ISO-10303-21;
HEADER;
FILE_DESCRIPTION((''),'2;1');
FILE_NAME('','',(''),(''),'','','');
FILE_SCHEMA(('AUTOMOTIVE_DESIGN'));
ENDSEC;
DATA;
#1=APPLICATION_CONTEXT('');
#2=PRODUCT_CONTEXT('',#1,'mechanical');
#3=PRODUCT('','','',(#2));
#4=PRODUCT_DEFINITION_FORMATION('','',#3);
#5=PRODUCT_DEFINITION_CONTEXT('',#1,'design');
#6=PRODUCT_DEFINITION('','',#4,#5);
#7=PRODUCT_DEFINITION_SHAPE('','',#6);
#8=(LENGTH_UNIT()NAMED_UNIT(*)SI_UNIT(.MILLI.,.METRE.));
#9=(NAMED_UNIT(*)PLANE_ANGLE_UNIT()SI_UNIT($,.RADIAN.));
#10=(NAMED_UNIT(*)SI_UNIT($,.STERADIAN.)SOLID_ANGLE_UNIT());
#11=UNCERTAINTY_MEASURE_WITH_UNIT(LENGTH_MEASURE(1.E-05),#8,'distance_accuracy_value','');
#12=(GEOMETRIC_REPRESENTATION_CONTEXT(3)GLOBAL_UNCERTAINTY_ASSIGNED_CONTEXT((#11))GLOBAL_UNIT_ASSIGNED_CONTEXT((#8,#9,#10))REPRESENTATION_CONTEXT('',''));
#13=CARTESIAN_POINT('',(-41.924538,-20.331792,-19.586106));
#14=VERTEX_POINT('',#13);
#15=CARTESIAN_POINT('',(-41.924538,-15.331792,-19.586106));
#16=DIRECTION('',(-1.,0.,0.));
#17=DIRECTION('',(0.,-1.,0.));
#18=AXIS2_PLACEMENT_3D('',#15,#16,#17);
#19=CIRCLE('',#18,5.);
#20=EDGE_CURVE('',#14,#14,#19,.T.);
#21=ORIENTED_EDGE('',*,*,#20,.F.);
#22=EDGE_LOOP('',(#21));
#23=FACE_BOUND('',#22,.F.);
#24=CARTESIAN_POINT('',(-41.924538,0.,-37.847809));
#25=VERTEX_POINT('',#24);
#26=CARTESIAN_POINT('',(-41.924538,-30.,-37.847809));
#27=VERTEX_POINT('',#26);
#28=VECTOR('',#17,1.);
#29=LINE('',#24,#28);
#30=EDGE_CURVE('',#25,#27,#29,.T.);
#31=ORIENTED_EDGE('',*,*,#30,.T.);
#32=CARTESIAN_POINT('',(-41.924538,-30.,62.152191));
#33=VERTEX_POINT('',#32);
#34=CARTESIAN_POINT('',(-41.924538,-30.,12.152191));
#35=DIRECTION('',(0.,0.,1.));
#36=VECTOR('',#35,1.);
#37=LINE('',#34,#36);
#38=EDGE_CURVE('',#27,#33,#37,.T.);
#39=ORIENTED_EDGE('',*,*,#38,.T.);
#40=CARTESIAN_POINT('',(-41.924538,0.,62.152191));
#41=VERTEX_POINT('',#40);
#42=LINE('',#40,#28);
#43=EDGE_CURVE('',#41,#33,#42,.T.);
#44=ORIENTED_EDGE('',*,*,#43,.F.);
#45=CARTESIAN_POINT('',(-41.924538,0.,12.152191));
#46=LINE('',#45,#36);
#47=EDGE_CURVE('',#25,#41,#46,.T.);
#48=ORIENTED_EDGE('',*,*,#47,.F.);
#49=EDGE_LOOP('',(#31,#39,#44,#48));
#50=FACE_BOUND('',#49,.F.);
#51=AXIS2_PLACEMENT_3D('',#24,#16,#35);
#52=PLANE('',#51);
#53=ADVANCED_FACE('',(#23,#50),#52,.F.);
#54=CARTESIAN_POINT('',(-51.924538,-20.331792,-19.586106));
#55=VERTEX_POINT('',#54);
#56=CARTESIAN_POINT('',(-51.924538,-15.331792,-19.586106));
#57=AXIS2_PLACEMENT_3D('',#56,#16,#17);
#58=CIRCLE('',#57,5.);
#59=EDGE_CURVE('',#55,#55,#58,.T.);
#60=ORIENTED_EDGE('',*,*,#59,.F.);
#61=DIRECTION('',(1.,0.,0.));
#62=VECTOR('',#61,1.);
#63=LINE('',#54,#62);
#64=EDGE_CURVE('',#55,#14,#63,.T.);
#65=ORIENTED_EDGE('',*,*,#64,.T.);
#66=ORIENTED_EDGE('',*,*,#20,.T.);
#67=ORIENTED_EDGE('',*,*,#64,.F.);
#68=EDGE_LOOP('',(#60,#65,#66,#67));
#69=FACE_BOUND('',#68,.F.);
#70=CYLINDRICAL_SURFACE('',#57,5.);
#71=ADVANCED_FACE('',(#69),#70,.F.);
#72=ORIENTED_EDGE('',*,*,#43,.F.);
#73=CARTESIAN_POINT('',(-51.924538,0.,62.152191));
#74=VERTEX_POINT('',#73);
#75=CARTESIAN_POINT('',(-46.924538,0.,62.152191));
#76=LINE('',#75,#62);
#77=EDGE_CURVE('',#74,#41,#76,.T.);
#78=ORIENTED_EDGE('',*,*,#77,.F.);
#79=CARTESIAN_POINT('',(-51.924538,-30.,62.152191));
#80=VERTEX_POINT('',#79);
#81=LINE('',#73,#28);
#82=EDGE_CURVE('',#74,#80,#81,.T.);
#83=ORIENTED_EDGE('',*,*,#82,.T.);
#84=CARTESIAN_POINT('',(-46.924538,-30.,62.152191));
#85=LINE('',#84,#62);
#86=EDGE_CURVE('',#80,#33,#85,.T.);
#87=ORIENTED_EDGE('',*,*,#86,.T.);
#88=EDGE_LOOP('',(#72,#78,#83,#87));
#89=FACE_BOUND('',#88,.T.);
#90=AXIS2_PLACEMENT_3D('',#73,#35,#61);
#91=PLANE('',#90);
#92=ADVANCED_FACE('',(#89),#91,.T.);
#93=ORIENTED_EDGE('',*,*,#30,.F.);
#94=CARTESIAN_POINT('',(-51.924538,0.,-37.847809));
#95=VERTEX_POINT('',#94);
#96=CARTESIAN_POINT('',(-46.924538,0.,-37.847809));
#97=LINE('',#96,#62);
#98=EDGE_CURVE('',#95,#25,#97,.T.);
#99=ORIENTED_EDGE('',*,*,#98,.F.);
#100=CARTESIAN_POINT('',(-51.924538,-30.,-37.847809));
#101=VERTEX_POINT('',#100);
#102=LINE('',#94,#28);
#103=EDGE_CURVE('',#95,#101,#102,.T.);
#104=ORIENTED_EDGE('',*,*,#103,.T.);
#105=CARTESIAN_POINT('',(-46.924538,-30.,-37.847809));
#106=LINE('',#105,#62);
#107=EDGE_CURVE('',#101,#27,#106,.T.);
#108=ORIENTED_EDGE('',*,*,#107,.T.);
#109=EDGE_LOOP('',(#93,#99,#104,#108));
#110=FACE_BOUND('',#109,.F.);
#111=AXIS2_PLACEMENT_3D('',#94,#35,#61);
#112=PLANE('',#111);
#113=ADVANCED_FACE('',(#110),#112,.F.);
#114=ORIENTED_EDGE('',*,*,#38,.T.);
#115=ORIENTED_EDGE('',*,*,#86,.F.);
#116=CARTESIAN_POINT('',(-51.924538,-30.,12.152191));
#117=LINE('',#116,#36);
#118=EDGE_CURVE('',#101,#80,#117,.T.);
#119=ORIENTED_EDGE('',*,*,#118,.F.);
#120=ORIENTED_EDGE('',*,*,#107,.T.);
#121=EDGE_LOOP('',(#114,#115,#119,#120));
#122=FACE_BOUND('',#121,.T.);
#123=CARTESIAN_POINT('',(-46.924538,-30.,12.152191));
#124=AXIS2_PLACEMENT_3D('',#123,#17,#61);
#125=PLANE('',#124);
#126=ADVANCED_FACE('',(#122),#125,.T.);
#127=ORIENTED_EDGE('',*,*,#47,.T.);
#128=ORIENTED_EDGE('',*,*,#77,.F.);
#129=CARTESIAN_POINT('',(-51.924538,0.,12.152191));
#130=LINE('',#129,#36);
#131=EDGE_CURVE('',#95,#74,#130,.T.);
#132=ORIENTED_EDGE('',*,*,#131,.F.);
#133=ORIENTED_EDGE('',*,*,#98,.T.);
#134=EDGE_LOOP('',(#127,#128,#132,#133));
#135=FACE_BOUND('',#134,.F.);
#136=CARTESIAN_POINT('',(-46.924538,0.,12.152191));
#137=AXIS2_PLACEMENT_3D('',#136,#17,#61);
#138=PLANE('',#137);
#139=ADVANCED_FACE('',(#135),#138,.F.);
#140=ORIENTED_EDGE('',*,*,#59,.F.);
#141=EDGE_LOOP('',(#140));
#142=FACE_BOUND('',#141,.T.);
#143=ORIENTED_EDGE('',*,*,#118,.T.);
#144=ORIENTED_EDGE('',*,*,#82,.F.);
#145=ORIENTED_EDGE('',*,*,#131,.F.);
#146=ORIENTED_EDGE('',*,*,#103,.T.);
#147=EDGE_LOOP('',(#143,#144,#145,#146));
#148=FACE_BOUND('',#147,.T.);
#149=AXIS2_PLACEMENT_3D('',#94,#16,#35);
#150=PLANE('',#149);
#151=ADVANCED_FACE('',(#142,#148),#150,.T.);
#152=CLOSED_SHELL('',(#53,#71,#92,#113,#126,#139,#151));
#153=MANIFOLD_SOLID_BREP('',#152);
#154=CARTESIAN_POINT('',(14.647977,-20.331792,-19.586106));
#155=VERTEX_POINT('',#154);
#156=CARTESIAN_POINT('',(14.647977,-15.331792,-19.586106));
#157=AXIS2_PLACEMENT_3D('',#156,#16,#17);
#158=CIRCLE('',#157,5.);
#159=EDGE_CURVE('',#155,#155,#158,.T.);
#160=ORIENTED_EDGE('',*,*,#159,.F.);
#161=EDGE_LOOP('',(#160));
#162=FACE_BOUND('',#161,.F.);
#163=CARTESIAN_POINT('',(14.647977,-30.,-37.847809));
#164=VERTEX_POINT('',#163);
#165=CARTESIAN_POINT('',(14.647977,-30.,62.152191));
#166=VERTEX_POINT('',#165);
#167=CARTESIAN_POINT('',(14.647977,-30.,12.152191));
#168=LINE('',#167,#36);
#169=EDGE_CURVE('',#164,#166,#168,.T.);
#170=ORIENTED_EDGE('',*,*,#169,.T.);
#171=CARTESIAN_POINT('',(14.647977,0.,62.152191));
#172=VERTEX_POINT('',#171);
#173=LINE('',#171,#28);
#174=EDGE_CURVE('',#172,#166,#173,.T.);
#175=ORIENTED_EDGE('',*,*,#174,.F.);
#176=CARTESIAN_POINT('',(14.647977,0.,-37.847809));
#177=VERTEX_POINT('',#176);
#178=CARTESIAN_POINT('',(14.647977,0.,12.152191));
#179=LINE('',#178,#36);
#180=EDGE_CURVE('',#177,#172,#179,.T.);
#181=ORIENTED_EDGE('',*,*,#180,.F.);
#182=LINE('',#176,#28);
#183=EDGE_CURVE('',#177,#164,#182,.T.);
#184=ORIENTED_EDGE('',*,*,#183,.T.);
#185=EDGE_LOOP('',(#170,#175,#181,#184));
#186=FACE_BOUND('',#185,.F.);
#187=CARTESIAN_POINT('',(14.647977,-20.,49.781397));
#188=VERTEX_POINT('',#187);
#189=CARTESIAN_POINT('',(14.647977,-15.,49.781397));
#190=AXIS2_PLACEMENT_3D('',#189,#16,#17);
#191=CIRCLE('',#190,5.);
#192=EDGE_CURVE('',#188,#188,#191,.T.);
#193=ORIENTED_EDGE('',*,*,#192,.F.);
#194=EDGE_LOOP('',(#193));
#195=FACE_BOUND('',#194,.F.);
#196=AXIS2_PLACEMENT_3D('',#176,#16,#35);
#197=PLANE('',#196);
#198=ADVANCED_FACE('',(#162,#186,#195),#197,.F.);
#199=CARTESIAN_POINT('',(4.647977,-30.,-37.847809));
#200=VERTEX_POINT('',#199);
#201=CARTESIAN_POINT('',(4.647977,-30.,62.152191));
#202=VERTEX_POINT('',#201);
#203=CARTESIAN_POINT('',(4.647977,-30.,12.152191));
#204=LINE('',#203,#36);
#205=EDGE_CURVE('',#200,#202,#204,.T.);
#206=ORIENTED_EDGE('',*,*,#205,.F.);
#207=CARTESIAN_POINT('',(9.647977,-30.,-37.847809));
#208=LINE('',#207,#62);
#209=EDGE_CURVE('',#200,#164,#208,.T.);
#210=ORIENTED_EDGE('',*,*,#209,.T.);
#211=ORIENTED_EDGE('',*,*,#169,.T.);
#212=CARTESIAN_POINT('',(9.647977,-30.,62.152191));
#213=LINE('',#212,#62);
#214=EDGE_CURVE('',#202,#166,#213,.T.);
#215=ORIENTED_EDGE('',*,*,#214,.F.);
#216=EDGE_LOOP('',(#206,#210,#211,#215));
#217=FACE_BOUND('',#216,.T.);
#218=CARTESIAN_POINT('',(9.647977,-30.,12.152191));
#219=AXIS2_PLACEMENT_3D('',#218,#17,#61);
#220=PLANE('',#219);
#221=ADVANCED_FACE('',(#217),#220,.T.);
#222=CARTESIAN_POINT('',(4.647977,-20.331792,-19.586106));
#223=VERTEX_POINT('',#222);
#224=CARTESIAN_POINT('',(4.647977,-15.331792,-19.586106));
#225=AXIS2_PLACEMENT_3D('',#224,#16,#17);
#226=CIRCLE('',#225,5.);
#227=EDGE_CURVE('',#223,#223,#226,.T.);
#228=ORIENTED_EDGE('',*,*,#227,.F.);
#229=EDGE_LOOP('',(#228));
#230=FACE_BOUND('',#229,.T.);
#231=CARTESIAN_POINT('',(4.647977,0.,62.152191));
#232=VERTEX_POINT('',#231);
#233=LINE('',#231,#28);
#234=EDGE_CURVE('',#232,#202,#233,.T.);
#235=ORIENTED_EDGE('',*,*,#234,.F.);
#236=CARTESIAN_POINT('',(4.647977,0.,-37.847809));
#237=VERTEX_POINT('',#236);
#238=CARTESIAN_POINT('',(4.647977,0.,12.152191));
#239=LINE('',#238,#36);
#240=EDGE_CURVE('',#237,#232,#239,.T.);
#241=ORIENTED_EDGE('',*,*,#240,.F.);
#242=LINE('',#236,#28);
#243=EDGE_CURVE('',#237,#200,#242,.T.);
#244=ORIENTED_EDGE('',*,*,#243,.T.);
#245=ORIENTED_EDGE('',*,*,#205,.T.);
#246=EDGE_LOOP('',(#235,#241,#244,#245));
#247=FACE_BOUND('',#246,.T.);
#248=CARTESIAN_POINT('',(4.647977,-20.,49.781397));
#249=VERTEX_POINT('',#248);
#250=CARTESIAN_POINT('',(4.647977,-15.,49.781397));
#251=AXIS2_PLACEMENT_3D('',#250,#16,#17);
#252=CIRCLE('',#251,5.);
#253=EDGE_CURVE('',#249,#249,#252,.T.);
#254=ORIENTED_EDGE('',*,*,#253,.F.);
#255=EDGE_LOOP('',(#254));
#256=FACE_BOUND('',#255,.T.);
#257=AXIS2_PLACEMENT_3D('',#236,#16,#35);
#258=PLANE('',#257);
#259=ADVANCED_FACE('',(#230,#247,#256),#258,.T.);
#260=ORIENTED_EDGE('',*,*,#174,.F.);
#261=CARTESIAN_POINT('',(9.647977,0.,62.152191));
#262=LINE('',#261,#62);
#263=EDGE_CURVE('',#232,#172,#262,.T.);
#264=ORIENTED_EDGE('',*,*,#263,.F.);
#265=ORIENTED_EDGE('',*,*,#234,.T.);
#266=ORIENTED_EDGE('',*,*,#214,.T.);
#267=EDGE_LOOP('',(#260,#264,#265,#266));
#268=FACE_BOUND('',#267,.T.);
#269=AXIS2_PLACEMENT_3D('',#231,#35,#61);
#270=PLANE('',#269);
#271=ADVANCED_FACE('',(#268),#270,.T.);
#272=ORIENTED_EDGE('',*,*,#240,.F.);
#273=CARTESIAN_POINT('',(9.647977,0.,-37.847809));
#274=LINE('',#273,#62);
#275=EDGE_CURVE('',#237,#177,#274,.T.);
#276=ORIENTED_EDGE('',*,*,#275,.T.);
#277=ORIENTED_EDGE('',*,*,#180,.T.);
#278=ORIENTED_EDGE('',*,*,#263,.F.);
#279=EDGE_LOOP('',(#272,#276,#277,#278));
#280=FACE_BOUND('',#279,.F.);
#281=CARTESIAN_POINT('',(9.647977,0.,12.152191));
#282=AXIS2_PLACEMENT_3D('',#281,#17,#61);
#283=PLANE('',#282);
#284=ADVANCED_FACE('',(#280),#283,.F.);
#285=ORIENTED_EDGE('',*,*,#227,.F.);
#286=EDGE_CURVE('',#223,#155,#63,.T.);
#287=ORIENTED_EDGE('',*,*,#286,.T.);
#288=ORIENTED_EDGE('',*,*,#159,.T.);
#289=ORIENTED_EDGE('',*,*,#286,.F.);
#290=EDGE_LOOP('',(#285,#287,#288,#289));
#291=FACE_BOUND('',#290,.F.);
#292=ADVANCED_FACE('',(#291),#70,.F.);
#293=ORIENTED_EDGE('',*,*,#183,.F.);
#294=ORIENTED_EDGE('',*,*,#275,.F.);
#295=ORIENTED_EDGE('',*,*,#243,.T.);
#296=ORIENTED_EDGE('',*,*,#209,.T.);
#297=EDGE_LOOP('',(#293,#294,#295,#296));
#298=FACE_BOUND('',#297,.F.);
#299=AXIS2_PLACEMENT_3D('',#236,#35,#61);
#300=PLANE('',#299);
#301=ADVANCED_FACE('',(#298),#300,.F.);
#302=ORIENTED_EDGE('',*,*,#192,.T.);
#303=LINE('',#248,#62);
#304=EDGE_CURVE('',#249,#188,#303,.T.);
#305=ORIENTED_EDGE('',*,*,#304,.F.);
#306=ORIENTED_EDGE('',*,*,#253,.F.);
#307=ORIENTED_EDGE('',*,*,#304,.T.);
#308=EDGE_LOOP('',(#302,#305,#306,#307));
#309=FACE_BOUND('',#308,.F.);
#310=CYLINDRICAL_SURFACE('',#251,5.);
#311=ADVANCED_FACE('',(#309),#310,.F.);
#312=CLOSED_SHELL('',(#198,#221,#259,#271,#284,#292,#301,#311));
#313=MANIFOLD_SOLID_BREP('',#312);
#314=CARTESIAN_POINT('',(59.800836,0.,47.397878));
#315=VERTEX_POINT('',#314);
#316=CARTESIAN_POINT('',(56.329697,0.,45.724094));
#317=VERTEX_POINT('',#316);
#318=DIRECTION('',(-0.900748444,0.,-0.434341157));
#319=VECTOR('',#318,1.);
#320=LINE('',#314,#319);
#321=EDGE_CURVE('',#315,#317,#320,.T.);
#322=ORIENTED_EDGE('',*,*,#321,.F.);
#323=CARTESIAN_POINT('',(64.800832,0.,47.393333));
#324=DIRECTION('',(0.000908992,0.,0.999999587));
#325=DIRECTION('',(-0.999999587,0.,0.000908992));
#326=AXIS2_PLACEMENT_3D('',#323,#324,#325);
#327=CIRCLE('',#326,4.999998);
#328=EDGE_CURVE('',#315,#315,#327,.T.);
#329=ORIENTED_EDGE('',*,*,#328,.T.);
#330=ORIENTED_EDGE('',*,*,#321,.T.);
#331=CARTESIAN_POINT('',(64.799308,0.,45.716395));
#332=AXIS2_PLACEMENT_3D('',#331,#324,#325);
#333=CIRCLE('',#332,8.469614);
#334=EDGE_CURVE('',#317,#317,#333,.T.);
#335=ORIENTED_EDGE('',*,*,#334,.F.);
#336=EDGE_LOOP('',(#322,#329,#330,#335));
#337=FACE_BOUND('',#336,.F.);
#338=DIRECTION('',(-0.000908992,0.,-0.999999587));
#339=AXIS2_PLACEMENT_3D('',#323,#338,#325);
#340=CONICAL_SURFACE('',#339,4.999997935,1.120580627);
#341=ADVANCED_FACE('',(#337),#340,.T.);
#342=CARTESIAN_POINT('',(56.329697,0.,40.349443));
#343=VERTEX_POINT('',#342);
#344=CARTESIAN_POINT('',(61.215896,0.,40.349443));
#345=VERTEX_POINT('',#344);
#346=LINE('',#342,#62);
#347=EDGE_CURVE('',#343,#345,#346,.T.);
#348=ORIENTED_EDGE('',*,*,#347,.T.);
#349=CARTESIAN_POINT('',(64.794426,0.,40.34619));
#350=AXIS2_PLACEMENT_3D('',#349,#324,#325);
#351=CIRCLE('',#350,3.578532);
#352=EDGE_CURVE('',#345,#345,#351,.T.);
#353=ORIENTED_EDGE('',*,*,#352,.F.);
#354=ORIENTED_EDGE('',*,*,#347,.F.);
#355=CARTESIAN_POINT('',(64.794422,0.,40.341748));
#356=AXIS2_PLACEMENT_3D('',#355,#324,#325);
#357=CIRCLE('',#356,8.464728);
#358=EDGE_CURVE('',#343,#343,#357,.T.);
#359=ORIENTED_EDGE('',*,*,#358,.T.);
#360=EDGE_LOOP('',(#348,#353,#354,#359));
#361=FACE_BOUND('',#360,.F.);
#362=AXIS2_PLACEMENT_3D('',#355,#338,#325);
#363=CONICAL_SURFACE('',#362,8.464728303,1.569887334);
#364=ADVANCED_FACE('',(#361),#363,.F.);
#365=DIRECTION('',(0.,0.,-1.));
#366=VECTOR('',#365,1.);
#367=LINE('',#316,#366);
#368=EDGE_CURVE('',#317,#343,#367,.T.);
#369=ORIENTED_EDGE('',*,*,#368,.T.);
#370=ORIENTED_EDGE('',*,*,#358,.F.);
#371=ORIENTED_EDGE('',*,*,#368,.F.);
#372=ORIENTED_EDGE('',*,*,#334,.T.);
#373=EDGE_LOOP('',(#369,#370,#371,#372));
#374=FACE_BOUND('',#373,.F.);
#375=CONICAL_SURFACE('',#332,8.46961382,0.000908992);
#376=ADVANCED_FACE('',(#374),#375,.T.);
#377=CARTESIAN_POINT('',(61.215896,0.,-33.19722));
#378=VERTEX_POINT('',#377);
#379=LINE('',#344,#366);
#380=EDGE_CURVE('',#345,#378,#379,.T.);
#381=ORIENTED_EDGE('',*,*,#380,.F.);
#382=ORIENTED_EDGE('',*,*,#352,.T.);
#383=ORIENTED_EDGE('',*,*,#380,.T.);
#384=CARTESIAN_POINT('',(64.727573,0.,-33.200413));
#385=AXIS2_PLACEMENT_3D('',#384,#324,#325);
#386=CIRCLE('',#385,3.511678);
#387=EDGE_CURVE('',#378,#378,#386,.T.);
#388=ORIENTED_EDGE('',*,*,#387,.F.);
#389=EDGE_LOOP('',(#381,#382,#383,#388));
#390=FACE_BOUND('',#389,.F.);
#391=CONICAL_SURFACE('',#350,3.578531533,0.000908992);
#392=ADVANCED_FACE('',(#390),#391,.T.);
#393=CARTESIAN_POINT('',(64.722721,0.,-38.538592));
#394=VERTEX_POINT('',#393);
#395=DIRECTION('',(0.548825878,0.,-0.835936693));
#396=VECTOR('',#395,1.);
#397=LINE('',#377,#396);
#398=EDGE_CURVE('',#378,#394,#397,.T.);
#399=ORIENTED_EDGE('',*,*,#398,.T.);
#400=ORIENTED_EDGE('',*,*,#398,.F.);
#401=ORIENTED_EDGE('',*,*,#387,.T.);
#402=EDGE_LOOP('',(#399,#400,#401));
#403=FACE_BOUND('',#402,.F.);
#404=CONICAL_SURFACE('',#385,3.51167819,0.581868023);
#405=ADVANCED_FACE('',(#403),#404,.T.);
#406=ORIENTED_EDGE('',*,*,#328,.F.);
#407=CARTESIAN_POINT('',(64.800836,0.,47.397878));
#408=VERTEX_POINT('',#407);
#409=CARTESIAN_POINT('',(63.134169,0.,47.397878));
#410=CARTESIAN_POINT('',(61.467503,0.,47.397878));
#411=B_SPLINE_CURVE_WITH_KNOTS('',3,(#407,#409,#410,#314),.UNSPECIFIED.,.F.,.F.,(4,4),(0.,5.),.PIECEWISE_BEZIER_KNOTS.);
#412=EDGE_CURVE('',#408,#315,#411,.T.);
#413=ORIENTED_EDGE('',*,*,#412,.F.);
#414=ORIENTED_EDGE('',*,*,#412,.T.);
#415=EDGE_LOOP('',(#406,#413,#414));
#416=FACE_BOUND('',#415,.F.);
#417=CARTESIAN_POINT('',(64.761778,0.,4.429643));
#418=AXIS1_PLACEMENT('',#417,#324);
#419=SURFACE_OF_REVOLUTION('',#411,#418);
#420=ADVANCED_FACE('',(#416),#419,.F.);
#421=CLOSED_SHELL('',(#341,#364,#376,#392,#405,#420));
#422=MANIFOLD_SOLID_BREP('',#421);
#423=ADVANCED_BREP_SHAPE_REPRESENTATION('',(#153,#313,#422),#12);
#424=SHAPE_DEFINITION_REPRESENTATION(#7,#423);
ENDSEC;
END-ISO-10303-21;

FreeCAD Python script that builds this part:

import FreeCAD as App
import Part
import Sketcher
Q = App.Units.Quantity


def add_polygon(sketch, points):
    """Adds a closed chain of lines whose ends are joined by coincident constraints."""
    first, n = sketch.GeometryCount, len(points)
    for a, b in zip(points, points[1:] + points[:1]):
        sketch.addGeometry(Part.LineSegment(App.Vector(*a, 0), App.Vector(*b, 0)), False)
    for i in range(n):
        sketch.addConstraint(Sketcher.Constraint("Coincident", first + i, 2, first + (i + 1) % n, 1))

doc = App.newDocument("Part")
body = doc.addObject("PartDesign::Body", "Body")

# Sketch on XZ plane
sketch1 = body.newObject("Sketcher::SketchObject", "Sketch")
sketch1.AttachmentSupport = (doc.getObject("XZ_Plane"), [""])
sketch1.MapMode = "FlatFace"
add_polygon(sketch1, [(5, 62), (5, -38), (15, -38), (15, 62)])  # lines 0-3
sketch1.addConstraint([
    Sketcher.Constraint("Vertical", 0),
    Sketcher.Constraint("Horizontal", 1),
    Sketcher.Constraint("Vertical", 2),
    Sketcher.Constraint("Horizontal", 3),
    Sketcher.Constraint("DistanceX", 1, 1, 1, 2, Q("10 mm")),
    Sketcher.Constraint("DistanceY", 0, 2, 0, 1, Q("100 mm")),
    Sketcher.Constraint("DistanceY", 0, 2, -1, 1, Q("37.847809 mm")),
    Sketcher.Constraint("DistanceX", -1, 1, 0, 2, Q("4.647977 mm")),
])
pad1 = body.newObject("PartDesign::Pad", "Pad")
pad1.Profile = sketch1
pad1.Length = 30
body2 = doc.addObject("PartDesign::Body", "Body001")

# Sketch on XZ plane
sketch2 = body2.newObject("Sketcher::SketchObject", "Sketch001")
sketch2.AttachmentSupport = (doc.getObject("XZ_Plane001"), [""])
sketch2.MapMode = "FlatFace"
add_polygon(sketch2, [(-52, 62), (-52, -38), (-42, -38), (-42, 62)])  # lines 0-3
sketch2.addConstraint([
    Sketcher.Constraint("Vertical", 0),
    Sketcher.Constraint("Horizontal", 1),
    Sketcher.Constraint("Vertical", 2),
    Sketcher.Constraint("Horizontal", 3),
    Sketcher.Constraint("DistanceX", 1, 1, 1, 2, Q("10 mm")),
    Sketcher.Constraint("DistanceY", 0, 2, 0, 1, Q("100 mm")),
    Sketcher.Constraint("DistanceY", 0, 2, -1, 1, Q("37.847809 mm")),
    Sketcher.Constraint("DistanceX", 0, 2, -1, 1, Q("51.924538 mm")),
])
pad2 = body2.newObject("PartDesign::Pad", "Pad001")
pad2.Profile = sketch2
pad2.Length = 30
body3 = doc.addObject("PartDesign::Body", "Body002")

# Sketch on YZ plane
sketch3 = body3.newObject("Sketcher::SketchObject", "Sketch002")
sketch3.AttachmentSupport = (doc.getObject("YZ_Plane002"), [""])
sketch3.MapMode = "FlatFace"
sketch3.AttachmentOffset = App.Placement(App.Vector(0, 0, -51.924538), App.Rotation())
sketch3.addGeometry(Part.Circle(App.Vector(-15, -20, 0), App.Vector(0, 0, 1), 5), False)
sketch3.addConstraint([
    Sketcher.Constraint("Diameter", 0, Q("10 mm")),
    Sketcher.Constraint("DistanceX", 0, 3, -1, 1, Q("15.331792 mm")),
    Sketcher.Constraint("DistanceY", 0, 3, -1, 1, Q("19.586106 mm")),
])
pad3 = body3.newObject("PartDesign::Pad", "Pad002")
pad3.Profile = sketch3
pad3.Length = 66.573515
doc.recompute()

body4 = doc.addObject("PartDesign::Body", "Body003")
body4.BaseFeature = body3
boolean = body.newObject("PartDesign::Boolean", "Boolean")
boolean.Type = "Cut"
boolean.addObjects([body4])
doc.recompute()

# Sketch on YZ plane
sketch4 = body.newObject("Sketcher::SketchObject", "Sketch003")
sketch4.AttachmentSupport = (doc.getObject("YZ_Plane"), [""])
sketch4.MapMode = "FlatFace"
sketch4.AttachmentOffset = App.Placement(App.Vector(0, 0, 4.647977), App.Rotation())
sketch4.addGeometry(Part.Circle(App.Vector(-15, 50, 0), App.Vector(0, 0, 1), 5), False)
sketch4.addConstraint([
    Sketcher.Constraint("Diameter", 0, Q("10 mm")),
    Sketcher.Constraint("DistanceX", 0, 3, -1, 1, Q("15 mm")),
    Sketcher.Constraint("DistanceY", -1, 1, 0, 3, Q("49.781397 mm")),
])
pocket1 = body.newObject("PartDesign::Pocket", "Pocket")
pocket1.Profile = sketch4
pocket1.Type = "ThroughAll"
pocket1.Reversed = True
doc.recompute()

boolean2 = body2.newObject("PartDesign::Boolean", "Boolean001")
boolean2.Type = "Cut"
boolean2.addObjects([body3])
body5 = doc.addObject("PartDesign::Body", "Body004")

# Sketch on XZ plane
sketch5 = body5.newObject("Sketcher::SketchObject", "Sketch004")
sketch5.AttachmentSupport = (doc.getObject("XZ_Plane004"), [""])
sketch5.MapMode = "FlatFace"
sketch5.addGeometry([
    Part.LineSegment(App.Vector(64.722721, -38.538592, 0), App.Vector(64.800836, 47.397878, 0)),  # 0
    Part.BSplineCurve([App.Vector(64.800836, 47.397878, 0), App.Vector(63.134169, 47.397878, 0), App.Vector(61.467503, 47.397878, 0), App.Vector(59.800836, 47.397878, 0)], [4, 4], [0, 5], False, 3, [1, 1, 1, 1], False),  # 1
    Part.LineSegment(App.Vector(59.800836, 47.397878, 0), App.Vector(56.329697, 45.724094, 0)),  # 2
    Part.LineSegment(App.Vector(56.329697, 45.724094, 0), App.Vector(56.329697, 40.349443, 0)),  # 3
    Part.LineSegment(App.Vector(56.329697, 40.349443, 0), App.Vector(61.215896, 40.349443, 0)),  # 4
    Part.LineSegment(App.Vector(61.215896, 40.349443, 0), App.Vector(61.215896, -33.19722, 0)),  # 5
    Part.LineSegment(App.Vector(61.215896, -33.19722, 0), App.Vector(64.722721, -38.538592, 0)),  # 6
], False)
sketch5.addGeometry(Part.LineSegment(App.Vector(64.722721, -38.538592, 0), App.Vector(64.800836, 47.397878, 0)), True)  # axis
sketch5.addConstraint([
    Sketcher.Constraint("Block", 1),
    Sketcher.Constraint("Coincident", 0, 2, 1, 1),
    Sketcher.Constraint("Coincident", 1, 2, 2, 1),
    Sketcher.Constraint("Coincident", 2, 2, 3, 1),
    Sketcher.Constraint("Coincident", 3, 2, 4, 1),
    Sketcher.Constraint("Coincident", 4, 2, 5, 1),
    Sketcher.Constraint("Coincident", 5, 2, 6, 1),
    Sketcher.Constraint("Coincident", 6, 2, 0, 1),
    Sketcher.Constraint("Vertical", 3),
    Sketcher.Constraint("Horizontal", 4),
    Sketcher.Constraint("Vertical", 5),
    Sketcher.Constraint("Coincident", 7, 1, 6, 2),
    Sketcher.Constraint("Coincident", 7, 2, 0, 2),
    Sketcher.Constraint("DistanceX", 4, 1, 4, 2, Q("4.886199 mm")),
    Sketcher.Constraint("DistanceY", 3, 2, 3, 1, Q("5.374651 mm")),
    Sketcher.Constraint("DistanceY", 5, 2, 0, 2, Q("80.595098 mm")),
    Sketcher.Constraint("DistanceY", 5, 2, 5, 1, Q("73.546663 mm")),
    Sketcher.Constraint("DistanceX", -1, 1, 6, 2, Q("64.722721 mm")),
    Sketcher.Constraint("DistanceX", 2, 2, 0, 2, Q("8.471139 mm")),
    Sketcher.Constraint("DistanceY", 6, 2, 5, 2, Q("5.341372 mm")),
])
revolution = body5.newObject("PartDesign::Revolution", "Revolution")
revolution.Profile = sketch5
revolution.ReferenceAxis = (sketch5, ["Axis0"])
revolution.Angle = 360

doc.recompute()
